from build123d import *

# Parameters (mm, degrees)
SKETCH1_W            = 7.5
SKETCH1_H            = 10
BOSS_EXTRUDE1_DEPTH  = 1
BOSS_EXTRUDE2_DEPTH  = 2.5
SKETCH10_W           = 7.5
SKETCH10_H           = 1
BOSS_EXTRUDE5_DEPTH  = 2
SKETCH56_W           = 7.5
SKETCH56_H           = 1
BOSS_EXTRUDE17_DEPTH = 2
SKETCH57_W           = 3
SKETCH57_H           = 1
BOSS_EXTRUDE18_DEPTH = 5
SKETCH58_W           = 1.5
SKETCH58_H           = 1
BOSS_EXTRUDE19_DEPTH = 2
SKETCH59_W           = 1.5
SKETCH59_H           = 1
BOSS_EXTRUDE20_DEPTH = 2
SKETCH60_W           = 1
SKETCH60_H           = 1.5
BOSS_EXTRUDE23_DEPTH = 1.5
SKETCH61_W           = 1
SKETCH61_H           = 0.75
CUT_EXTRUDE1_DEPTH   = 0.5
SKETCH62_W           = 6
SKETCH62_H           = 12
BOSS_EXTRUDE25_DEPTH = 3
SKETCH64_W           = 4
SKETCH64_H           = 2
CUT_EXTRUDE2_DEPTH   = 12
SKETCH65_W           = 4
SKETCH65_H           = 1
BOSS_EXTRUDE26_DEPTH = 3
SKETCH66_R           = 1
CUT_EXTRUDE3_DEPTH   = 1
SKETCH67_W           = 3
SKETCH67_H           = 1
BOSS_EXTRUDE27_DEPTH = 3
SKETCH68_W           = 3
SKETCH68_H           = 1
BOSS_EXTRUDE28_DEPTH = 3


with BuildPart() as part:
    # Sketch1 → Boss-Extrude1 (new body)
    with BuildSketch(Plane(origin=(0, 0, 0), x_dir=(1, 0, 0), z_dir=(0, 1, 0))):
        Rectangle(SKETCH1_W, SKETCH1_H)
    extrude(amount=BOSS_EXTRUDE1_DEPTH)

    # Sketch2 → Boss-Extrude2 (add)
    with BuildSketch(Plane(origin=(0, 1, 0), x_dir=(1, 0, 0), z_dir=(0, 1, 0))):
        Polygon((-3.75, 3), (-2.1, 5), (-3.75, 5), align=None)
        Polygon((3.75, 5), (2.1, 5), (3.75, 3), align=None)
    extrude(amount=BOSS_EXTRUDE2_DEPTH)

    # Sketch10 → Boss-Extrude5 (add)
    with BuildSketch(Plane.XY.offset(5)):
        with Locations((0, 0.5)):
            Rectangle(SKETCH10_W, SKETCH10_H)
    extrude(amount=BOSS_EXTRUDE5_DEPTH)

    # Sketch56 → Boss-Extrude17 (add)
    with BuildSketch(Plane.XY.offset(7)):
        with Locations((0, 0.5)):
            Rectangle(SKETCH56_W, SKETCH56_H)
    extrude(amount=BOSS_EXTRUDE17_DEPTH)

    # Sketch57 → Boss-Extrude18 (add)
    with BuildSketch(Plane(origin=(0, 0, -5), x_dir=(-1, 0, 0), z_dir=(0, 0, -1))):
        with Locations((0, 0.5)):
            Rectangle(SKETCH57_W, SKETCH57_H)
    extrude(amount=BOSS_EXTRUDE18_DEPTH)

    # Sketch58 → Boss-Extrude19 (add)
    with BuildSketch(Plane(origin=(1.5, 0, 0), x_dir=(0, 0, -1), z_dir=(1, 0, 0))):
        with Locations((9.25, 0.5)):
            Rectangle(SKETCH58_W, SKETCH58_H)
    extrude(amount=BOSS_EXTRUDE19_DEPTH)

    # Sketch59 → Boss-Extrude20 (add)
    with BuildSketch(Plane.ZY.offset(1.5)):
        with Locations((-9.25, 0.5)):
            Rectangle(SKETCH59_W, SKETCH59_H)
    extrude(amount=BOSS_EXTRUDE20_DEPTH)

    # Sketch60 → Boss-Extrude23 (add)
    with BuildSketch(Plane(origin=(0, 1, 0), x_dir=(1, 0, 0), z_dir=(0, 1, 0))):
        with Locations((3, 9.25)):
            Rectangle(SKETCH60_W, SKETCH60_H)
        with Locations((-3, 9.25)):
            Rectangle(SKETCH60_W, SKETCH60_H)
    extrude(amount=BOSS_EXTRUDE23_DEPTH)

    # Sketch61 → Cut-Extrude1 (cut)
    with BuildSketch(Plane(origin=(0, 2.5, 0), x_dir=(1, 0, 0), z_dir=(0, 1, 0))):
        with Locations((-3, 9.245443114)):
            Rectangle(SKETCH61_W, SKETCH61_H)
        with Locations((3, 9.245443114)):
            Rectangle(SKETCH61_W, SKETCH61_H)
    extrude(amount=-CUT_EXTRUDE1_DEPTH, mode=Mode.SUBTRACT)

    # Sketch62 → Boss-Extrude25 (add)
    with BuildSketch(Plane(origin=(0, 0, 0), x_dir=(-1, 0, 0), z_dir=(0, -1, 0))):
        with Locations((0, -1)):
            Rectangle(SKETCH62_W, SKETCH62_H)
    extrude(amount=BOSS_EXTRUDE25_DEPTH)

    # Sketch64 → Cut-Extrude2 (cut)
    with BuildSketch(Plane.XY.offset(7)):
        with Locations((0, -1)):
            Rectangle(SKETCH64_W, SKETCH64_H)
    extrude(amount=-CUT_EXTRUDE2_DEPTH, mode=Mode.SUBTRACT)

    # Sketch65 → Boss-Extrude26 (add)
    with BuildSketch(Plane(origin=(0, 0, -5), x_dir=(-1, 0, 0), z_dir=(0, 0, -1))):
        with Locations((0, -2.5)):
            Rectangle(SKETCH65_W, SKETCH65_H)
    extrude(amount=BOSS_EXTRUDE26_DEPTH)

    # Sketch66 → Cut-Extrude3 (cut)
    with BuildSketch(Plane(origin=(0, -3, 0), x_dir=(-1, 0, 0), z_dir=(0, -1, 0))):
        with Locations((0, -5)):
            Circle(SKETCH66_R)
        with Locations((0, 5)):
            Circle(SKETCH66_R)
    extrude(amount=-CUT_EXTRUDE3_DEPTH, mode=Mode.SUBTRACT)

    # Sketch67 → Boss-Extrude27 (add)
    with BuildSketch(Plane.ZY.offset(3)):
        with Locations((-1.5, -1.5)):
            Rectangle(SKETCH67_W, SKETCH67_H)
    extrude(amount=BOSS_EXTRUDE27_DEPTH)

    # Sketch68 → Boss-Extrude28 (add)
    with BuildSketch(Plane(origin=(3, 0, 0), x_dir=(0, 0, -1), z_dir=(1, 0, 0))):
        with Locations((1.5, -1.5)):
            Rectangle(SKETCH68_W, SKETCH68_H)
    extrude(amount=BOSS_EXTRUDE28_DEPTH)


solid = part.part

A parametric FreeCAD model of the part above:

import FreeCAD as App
import Part
import Sketcher
Q = App.Units.Quantity

doc = App.newDocument("Part")
params = doc.addObject("Spreadsheet::Sheet", "Params")
for row, (alias, value) in enumerate([
    ("sketch1_height", "10 mm"),
    ("sketch1_width", "7.5 mm"),
    ("pad1_length", "1 mm"),
    ("sketch2_height", "2 mm"),
    ("sketch2_width", "1.65 mm"),
    ("pad2_length", "2.5 mm"),
    ("sketch3_height", "1 mm"),
    ("sketch3_width", "7.5 mm"),
    ("pad3_length", "2 mm"),
    ("sketch4_height", "1 mm"),
    ("sketch4_width", "7.5 mm"),
    ("pad4_length", "2 mm"),
    ("sketch5_width", "3 mm"),
    ("sketch5_height", "1 mm"),
    ("pad5_length", "5 mm"),
    ("sketch6_width", "1 mm"),
    ("sketch6_height", "1.5 mm"),
    ("pad6_length", "2 mm"),
    ("sketch7_width", "1 mm"),
    ("sketch7_height", "1.5 mm"),
    ("pad7_length", "2 mm"),
    ("sketch8_width", "1 mm"),
    ("sketch8_height", "1.5 mm"),
    ("pad8_length", "1.5 mm"),
    ("sketch9_width", "1 mm"),
    ("sketch9_height", "0.75 mm"),
    ("pocket1_length", "0.5 mm"),
    ("sketch10_width", "6 mm"),
    ("sketch10_height", "12 mm"),
    ("pad9_length", "3 mm"),
    ("sketch11_width", "4 mm"),
    ("sketch11_height", "2 mm"),
    ("pocket2_length", "12 mm"),
    ("sketch12_width", "4 mm"),
    ("sketch12_height", "1 mm"),
    ("pad10_length", "3 mm"),
    ("sketch13_diameter", "2 mm"),
    ("pocket3_length", "1 mm"),
    ("sketch14_width", "1 mm"),
    ("sketch14_height", "3 mm"),
    ("pad11_length", "3 mm"),
    ("sketch15_width", "1 mm"),
    ("sketch15_height", "3 mm"),
    ("pad12_length", "3 mm"),
], start=1):
    params.set(f"A{row}", alias)
    params.set(f"B{row}", "=" + value)
    params.setAlias(f"B{row}", alias)

body = doc.addObject("PartDesign::Body", "Body")

sketch1 = doc.addObject("Sketcher::SketchObject", "Sketch")
body.addObject(sketch1)
sketch1.AttachmentSupport = (doc.XZ_Plane, [""])
sketch1.MapMode = "FlatFace"
sketch1.addGeometry([
    Part.LineSegment(App.Vector(-4, -5, 0), App.Vector(-4, 5, 0)),
    Part.LineSegment(App.Vector(-4, 5, 0), App.Vector(4, 5, 0)),
    Part.LineSegment(App.Vector(4, 5, 0), App.Vector(4, -5, 0)),
    Part.LineSegment(App.Vector(4, -5, 0), App.Vector(-4, -5, 0)),
], False)
sketch1.addConstraint([
    Sketcher.Constraint("Coincident", 0, 2, 1, 1),
    Sketcher.Constraint("Coincident", 1, 2, 2, 1),
    Sketcher.Constraint("Coincident", 2, 2, 3, 1),
    Sketcher.Constraint("Coincident", 3, 2, 0, 1),
    Sketcher.Constraint("Vertical", 0),
    Sketcher.Constraint("Horizontal", 1),
    Sketcher.Constraint("Vertical", 2),
    Sketcher.Constraint("Horizontal", 3),
    Sketcher.Constraint("Symmetric", 0, 2, 2, 2, -1, 1),
    Sketcher.Constraint("DistanceY", 0, 1, 0, 2, Q("10 mm")),
    Sketcher.Constraint("DistanceX", 1, 1, 1, 2, Q("7.5 mm")),
])
sketch1.setExpression("Constraints[9]", "Params.sketch1_height")
sketch1.setExpression("Constraints[10]", "Params.sketch1_width")
pad1 = doc.addObject("PartDesign::Pad", "Pad")
body.addObject(pad1)
pad1.Profile = sketch1
pad1.setExpression("Length", "Params.pad1_length")
pad1.Reversed = True

sketch2 = doc.addObject("Sketcher::SketchObject", "Sketch001")
body.addObject(sketch2)
sketch2.AttachmentSupport = (doc.XZ_Plane, [""])
sketch2.MapMode = "FlatFace"
sketch2.AttachmentOffset = App.Placement(App.Vector(0, 0, -1), App.Rotation())
sketch2.addGeometry([
    Part.LineSegment(App.Vector(-3.8, -3, 0), App.Vector(-2.1, -5, 0)),
    Part.LineSegment(App.Vector(-2.1, -5, 0), App.Vector(-3.8, -5, 0)),
    Part.LineSegment(App.Vector(-3.8, -5, 0), App.Vector(-3.8, -3, 0)),
    Part.LineSegment(App.Vector(3.8, -5, 0), App.Vector(2.1, -5, 0)),
    Part.LineSegment(App.Vector(2.1, -5, 0), App.Vector(3.8, -3, 0)),
    Part.LineSegment(App.Vector(3.8, -3, 0), App.Vector(3.8, -5, 0)),
], False)
sketch2.addConstraint([
    Sketcher.Constraint("Coincident", 0, 2, 1, 1),
    Sketcher.Constraint("Coincident", 1, 2, 2, 1),
    Sketcher.Constraint("Coincident", 2, 2, 0, 1),
    Sketcher.Constraint("Coincident", 3, 2, 4, 1),
    Sketcher.Constraint("Coincident", 4, 2, 5, 1),
    Sketcher.Constraint("Coincident", 5, 2, 3, 1),
    Sketcher.Constraint("Horizontal", 1),
    Sketcher.Constraint("Vertical", 2),
    Sketcher.Constraint("Horizontal", 3),
    Sketcher.Constraint("Vertical", 5),
    Sketcher.Constraint("Symmetric", 0, 2, 3, 2, -2),
    Sketcher.Constraint("Symmetric", 2, 2, 4, 2, -2),
    Sketcher.Constraint("DistanceY", 2, 1, 2, 2, Q("2 mm")),
    Sketcher.Constraint("DistanceY", 0, 2, -1, 1, Q("5 mm")),
    Sketcher.Constraint("DistanceX", 1, 2, 1, 1, Q("1.65 mm")),
    Sketcher.Constraint("DistanceX", 0, 2, -1, 1, Q("2.1 mm")),
])
sketch2.setExpression("Constraints[12]", "Params.sketch2_height")
sketch2.setExpression("Constraints[14]", "Params.sketch2_width")
pad2 = doc.addObject("PartDesign::Pad", "Pad001")
body.addObject(pad2)
pad2.Profile = sketch2
pad2.setExpression("Length", "Params.pad2_length")
pad2.Reversed = True

sketch3 = doc.addObject("Sketcher::SketchObject", "Sketch002")
body.addObject(sketch3)
sketch3.AttachmentSupport = (doc.XY_Plane, [""])
sketch3.MapMode = "FlatFace"
sketch3.AttachmentOffset = App.Placement(App.Vector(0, 0, 5), App.Rotation())
sketch3.addGeometry([
    Part.LineSegment(App.Vector(-3.8, 1, 0), App.Vector(-3.8, 0, 0)),
    Part.LineSegment(App.Vector(-3.8, 0, 0), App.Vector(3.8, 0, 0)),
    Part.LineSegment(App.Vector(3.8, 0, 0), App.Vector(3.8, 1, 0)),
    Part.LineSegment(App.Vector(3.8, 1, 0), App.Vector(-3.8, 1, 0)),
], False)
sketch3.addConstraint([
    Sketcher.Constraint("Coincident", 0, 2, 1, 1),
    Sketcher.Constraint("Coincident", 1, 2, 2, 1),
    Sketcher.Constraint("Coincident", 2, 2, 3, 1),
    Sketcher.Constraint("Coincident", 3, 2, 0, 1),
    Sketcher.Constraint("Vertical", 0),
    Sketcher.Constraint("Horizontal", 1),
    Sketcher.Constraint("Vertical", 2),
    Sketcher.Constraint("Horizontal", 3),
    Sketcher.Constraint("Symmetric", 0, 2, 1, 2, -1, 1),
    Sketcher.Constraint("DistanceY", 0, 2, 0, 1, Q("1 mm")),
    Sketcher.Constraint("DistanceX", 1, 1, 1, 2, Q("7.5 mm")),
])
sketch3.setExpression("Constraints[9]", "Params.sketch3_height")
sketch3.setExpression("Constraints[10]", "Params.sketch3_width")
pad3 = doc.addObject("PartDesign::Pad", "Pad002")
body.addObject(pad3)
pad3.Profile = sketch3
pad3.setExpression("Length", "Params.pad3_length")

sketch4 = doc.addObject("Sketcher::SketchObject", "Sketch003")
body.addObject(sketch4)
sketch4.AttachmentSupport = (doc.XY_Plane, [""])
sketch4.MapMode = "FlatFace"
sketch4.AttachmentOffset = App.Placement(App.Vector(0, 0, 7), App.Rotation())
sketch4.addGeometry([
    Part.LineSegment(App.Vector(-3.8, 1, 0), App.Vector(-3.8, 0, 0)),
    Part.LineSegment(App.Vector(-3.8, 0, 0), App.Vector(3.8, 0, 0)),
    Part.LineSegment(App.Vector(3.8, 0, 0), App.Vector(3.8, 1, 0)),
    Part.LineSegment(App.Vector(3.8, 1, 0), App.Vector(-3.8, 1, 0)),
], False)
sketch4.addConstraint([
    Sketcher.Constraint("Coincident", 0, 2, 1, 1),
    Sketcher.Constraint("Coincident", 1, 2, 2, 1),
    Sketcher.Constraint("Coincident", 2, 2, 3, 1),
    Sketcher.Constraint("Coincident", 3, 2, 0, 1),
    Sketcher.Constraint("Vertical", 0),
    Sketcher.Constraint("Horizontal", 1),
    Sketcher.Constraint("Vertical", 2),
    Sketcher.Constraint("Horizontal", 3),
    Sketcher.Constraint("Symmetric", 0, 2, 1, 2, -1, 1),
    Sketcher.Constraint("DistanceY", 0, 2, 0, 1, Q("1 mm")),
    Sketcher.Constraint("DistanceX", 1, 1, 1, 2, Q("7.5 mm")),
])
sketch4.setExpression("Constraints[9]", "Params.sketch4_height")
sketch4.setExpression("Constraints[10]", "Params.sketch4_width")
pad4 = doc.addObject("PartDesign::Pad", "Pad003")
body.addObject(pad4)
pad4.Profile = sketch4
pad4.setExpression("Length", "Params.pad4_length")

sketch5 = doc.addObject("Sketcher::SketchObject", "Sketch004")
body.addObject(sketch5)
sketch5.AttachmentSupport = (doc.XY_Plane, [""])
sketch5.MapMode = "FlatFace"
sketch5.AttachmentOffset = App.Placement(App.Vector(0, 0, -5), App.Rotation())
sketch5.addGeometry([
    Part.LineSegment(App.Vector(1.5, 1, 0), App.Vector(1.5, 0, 0)),
    Part.LineSegment(App.Vector(1.5, 0, 0), App.Vector(-1.5, 0, 0)),
    Part.LineSegment(App.Vector(-1.5, 0, 0), App.Vector(-1.5, 1, 0)),
    Part.LineSegment(App.Vector(-1.5, 1, 0), App.Vector(1.5, 1, 0)),
], False)
sketch5.addConstraint([
    Sketcher.Constraint("Coincident", 0, 2, 1, 1),
    Sketcher.Constraint("Coincident", 1, 2, 2, 1),
    Sketcher.Constraint("Coincident", 2, 2, 3, 1),
    Sketcher.Constraint("Coincident", 3, 2, 0, 1),
    Sketcher.Constraint("Vertical", 0),
    Sketcher.Constraint("Horizontal", 1),
    Sketcher.Constraint("Vertical", 2),
    Sketcher.Constraint("Horizontal", 3),
    Sketcher.Constraint("Symmetric", 0, 2, 1, 2, -1, 1),
    Sketcher.Constraint("DistanceX", 1, 2, 1, 1, Q("3 mm")),
    Sketcher.Constraint("DistanceY", 0, 2, 0, 1, Q("1 mm")),
])
sketch5.setExpression("Constraints[9]", "Params.sketch5_width")
sketch5.setExpression("Constraints[10]", "Params.sketch5_height")
pad5 = doc.addObject("PartDesign::Pad", "Pad004")
body.addObject(pad5)
pad5.Profile = sketch5
pad5.setExpression("Length", "Params.pad5_length")
pad5.Reversed = True

sketch6 = doc.addObject("Sketcher::SketchObject", "Sketch005")
body.addObject(sketch6)
sketch6.AttachmentSupport = (doc.YZ_Plane, [""])
sketch6.MapMode = "FlatFace"
sketch6.AttachmentOffset = App.Placement(App.Vector(0, 0, 1.5), App.Rotation())
sketch6.addGeometry([
    Part.LineSegment(App.Vector(1, -8.5, 0), App.Vector(0, -8.5, 0)),
    Part.LineSegment(App.Vector(0, -8.5, 0), App.Vector(0, -10, 0)),
    Part.LineSegment(App.Vector(0, -10, 0), App.Vector(1, -10, 0)),
    Part.LineSegment(App.Vector(1, -10, 0), App.Vector(1, -8.5, 0)),
], False)
sketch6.addConstraint([
    Sketcher.Constraint("Coincident", 0, 2, 1, 1),
    Sketcher.Constraint("Coincident", 1, 2, 2, 1),
    Sketcher.Constraint("Coincident", 2, 2, 3, 1),
    Sketcher.Constraint("Coincident", 3, 2, 0, 1),
    Sketcher.Constraint("Horizontal", 0),
    Sketcher.Constraint("Vertical", 1),
    Sketcher.Constraint("Horizontal", 2),
    Sketcher.Constraint("Vertical", 3),
    Sketcher.Constraint("PointOnObject", 0, 2, -2),
    Sketcher.Constraint("DistanceX", 0, 2, 0, 1, Q("1 mm")),
    Sketcher.Constraint("DistanceY", 1, 2, 1, 1, Q("1.5 mm")),
    Sketcher.Constraint("DistanceY", 1, 2, -1, 1, Q("10 mm")),
])
sketch6.setExpression("Constraints[9]", "Params.sketch6_width")
sketch6.setExpression("Constraints[10]", "Params.sketch6_height")
pad6 = doc.addObject("PartDesign::Pad", "Pad005")
body.addObject(pad6)
pad6.Profile = sketch6
pad6.setExpression("Length", "Params.pad6_length")

sketch7 = doc.addObject("Sketcher::SketchObject", "Sketch006")
body.addObject(sketch7)
sketch7.AttachmentSupport = (doc.YZ_Plane, [""])
sketch7.MapMode = "FlatFace"
sketch7.AttachmentOffset = App.Placement(App.Vector(0, 0, -1.5), App.Rotation())
sketch7.addGeometry([
    Part.LineSegment(App.Vector(1, -10, 0), App.Vector(0, -10, 0)),
    Part.LineSegment(App.Vector(0, -10, 0), App.Vector(0, -8.5, 0)),
    Part.LineSegment(App.Vector(0, -8.5, 0), App.Vector(1, -8.5, 0)),
    Part.LineSegment(App.Vector(1, -8.5, 0), App.Vector(1, -10, 0)),
], False)
sketch7.addConstraint([
    Sketcher.Constraint("Coincident", 0, 2, 1, 1),
    Sketcher.Constraint("Coincident", 1, 2, 2, 1),
    Sketcher.Constraint("Coincident", 2, 2, 3, 1),
    Sketcher.Constraint("Coincident", 3, 2, 0, 1),
    Sketcher.Constraint("Horizontal", 0),
    Sketcher.Constraint("Vertical", 1),
    Sketcher.Constraint("Horizontal", 2),
    Sketcher.Constraint("Vertical", 3),
    Sketcher.Constraint("PointOnObject", 0, 2, -2),
    Sketcher.Constraint("DistanceX", 0, 2, 0, 1, Q("1 mm")),
    Sketcher.Constraint("DistanceY", 1, 1, 1, 2, Q("1.5 mm")),
    Sketcher.Constraint("DistanceY", 0, 2, -1, 1, Q("10 mm")),
])
sketch7.setExpression("Constraints[9]", "Params.sketch7_width")
sketch7.setExpression("Constraints[10]", "Params.sketch7_height")
pad7 = doc.addObject("PartDesign::Pad", "Pad006")
body.addObject(pad7)
pad7.Profile = sketch7
pad7.setExpression("Length", "Params.pad7_length")
pad7.Reversed = True

sketch8 = doc.addObject("Sketcher::SketchObject", "Sketch007")
body.addObject(sketch8)
sketch8.AttachmentSupport = (doc.XZ_Plane, [""])
sketch8.MapMode = "FlatFace"
sketch8.AttachmentOffset = App.Placement(App.Vector(0, 0, -1), App.Rotation())
sketch8.addGeometry([
    Part.LineSegment(App.Vector(2.5, -10, 0), App.Vector(2.5, -8.5, 0)),
    Part.LineSegment(App.Vector(2.5, -8.5, 0), App.Vector(3.5, -8.5, 0)),
    Part.LineSegment(App.Vector(3.5, -8.5, 0), App.Vector(3.5, -10, 0)),
    Part.LineSegment(App.Vector(3.5, -10, 0), App.Vector(2.5, -10, 0)),
    Part.LineSegment(App.Vector(-3.5, -10, 0), App.Vector(-3.5, -8.5, 0)),
    Part.LineSegment(App.Vector(-3.5, -8.5, 0), App.Vector(-2.5, -8.5, 0)),
    Part.LineSegment(App.Vector(-2.5, -8.5, 0), App.Vector(-2.5, -10, 0)),
    Part.LineSegment(App.Vector(-2.5, -10, 0), App.Vector(-3.5, -10, 0)),
], False)
sketch8.addConstraint([
    Sketcher.Constraint("Coincident", 0, 2, 1, 1),
    Sketcher.Constraint("Coincident", 1, 2, 2, 1),
    Sketcher.Constraint("Coincident", 2, 2, 3, 1),
    Sketcher.Constraint("Coincident", 3, 2, 0, 1),
    Sketcher.Constraint("Coincident", 4, 2, 5, 1),
    Sketcher.Constraint("Coincident", 5, 2, 6, 1),
    Sketcher.Constraint("Coincident", 6, 2, 7, 1),
    Sketcher.Constraint("Coincident", 7, 2, 4, 1),
    Sketcher.Constraint("Vertical", 0),
    Sketcher.Constraint("Horizontal", 1),
    Sketcher.Constraint("Vertical", 2),
    Sketcher.Constraint("Horizontal", 3),
    Sketcher.Constraint("Vertical", 4),
    Sketcher.Constraint("Horizontal", 5),
    Sketcher.Constraint("Vertical", 6),
    Sketcher.Constraint("Horizontal", 7),
    Sketcher.Constraint("Symmetric", 1, 2, 4, 2, -2),
    Sketcher.Constraint("Symmetric", 3, 2, 6, 2, -2),
    Sketcher.Constraint("DistanceX", 1, 1, 1, 2, Q("1 mm")),
    Sketcher.Constraint("DistanceY", 0, 1, 0, 2, Q("1.5 mm")),
    Sketcher.Constraint("DistanceY", 2, 2, -1, 1, Q("10 mm")),
    Sketcher.Constraint("DistanceX", 4, 2, 0, 2, Q("6 mm")),
])
sketch8.setExpression("Constraints[18]", "Params.sketch8_width")
sketch8.setExpression("Constraints[19]", "Params.sketch8_height")
pad8 = doc.addObject("PartDesign::Pad", "Pad007")
body.addObject(pad8)
pad8.Profile = sketch8
pad8.setExpression("Length", "Params.pad8_length")
pad8.Reversed = True

sketch9 = doc.addObject("Sketcher::SketchObject", "Sketch008")
body.addObject(sketch9)
sketch9.AttachmentSupport = (doc.XZ_Plane, [""])
sketch9.MapMode = "FlatFace"
sketch9.AttachmentOffset = App.Placement(App.Vector(0, 0, -2.5), App.Rotation())
sketch9.addGeometry([
    Part.LineSegment(App.Vector(-3.5, -9.6, 0), App.Vector(-3.5, -8.9, 0)),
    Part.LineSegment(App.Vector(-3.5, -8.9, 0), App.Vector(-2.5, -8.9, 0)),
    Part.LineSegment(App.Vector(-2.5, -8.9, 0), App.Vector(-2.5, -9.6, 0)),
    Part.LineSegment(App.Vector(-2.5, -9.6, 0), App.Vector(-3.5, -9.6, 0)),
    Part.LineSegment(App.Vector(2.5, -9.6, 0), App.Vector(2.5, -8.9, 0)),
    Part.LineSegment(App.Vector(2.5, -8.9, 0), App.Vector(3.5, -8.9, 0)),
    Part.LineSegment(App.Vector(3.5, -8.9, 0), App.Vector(3.5, -9.6, 0)),
    Part.LineSegment(App.Vector(3.5, -9.6, 0), App.Vector(2.5, -9.6, 0)),
], False)
sketch9.addConstraint([
    Sketcher.Constraint("Coincident", 0, 2, 1, 1),
    Sketcher.Constraint("Coincident", 1, 2, 2, 1),
    Sketcher.Constraint("Coincident", 2, 2, 3, 1),
    Sketcher.Constraint("Coincident", 3, 2, 0, 1),
    Sketcher.Constraint("Coincident", 4, 2, 5, 1),
    Sketcher.Constraint("Coincident", 5, 2, 6, 1),
    Sketcher.Constraint("Coincident", 6, 2, 7, 1),
    Sketcher.Constraint("Coincident", 7, 2, 4, 1),
    Sketcher.Constraint("Vertical", 0),
    Sketcher.Constraint("Horizontal", 1),
    Sketcher.Constraint("Vertical", 2),
    Sketcher.Constraint("Horizontal", 3),
    Sketcher.Constraint("Vertical", 4),
    Sketcher.Constraint("Horizontal", 5),
    Sketcher.Constraint("Vertical", 6),
    Sketcher.Constraint("Horizontal", 7),
    Sketcher.Constraint("Symmetric", 1, 2, 4, 2, -2),
    Sketcher.Constraint("Symmetric", 3, 2, 6, 2, -2),
    Sketcher.Constraint("DistanceX", 1, 1, 1, 2, Q("1 mm")),
    Sketcher.Constraint("DistanceX", 1, 2, 4, 2, Q("5 mm")),
    Sketcher.Constraint("DistanceY", 0, 1, 0, 2, Q("0.75 mm")),
    Sketcher.Constraint("DistanceY", 0, 2, -1, 1, Q("8.870443 mm")),
])
sketch9.setExpression("Constraints[18]", "Params.sketch9_width")
sketch9.setExpression("Constraints[20]", "Params.sketch9_height")
pocket1 = doc.addObject("PartDesign::Pocket", "Pocket")
body.addObject(pocket1)
pocket1.Profile = sketch9
pocket1.setExpression("Length", "Params.pocket1_length")
pocket1.Reversed = True

sketch10 = doc.addObject("Sketcher::SketchObject", "Sketch009")
body.addObject(sketch10)
sketch10.AttachmentSupport = (doc.XZ_Plane, [""])
sketch10.MapMode = "FlatFace"
sketch10.addGeometry([
    Part.LineSegment(App.Vector(3, -5, 0), App.Vector(3, 7, 0)),
    Part.LineSegment(App.Vector(3, 7, 0), App.Vector(-3, 7, 0)),
    Part.LineSegment(App.Vector(-3, 7, 0), App.Vector(-3, -5, 0)),
    Part.LineSegment(App.Vector(-3, -5, 0), App.Vector(3, -5, 0)),
], False)
sketch10.addConstraint([
    Sketcher.Constraint("Coincident", 0, 2, 1, 1),
    Sketcher.Constraint("Coincident", 1, 2, 2, 1),
    Sketcher.Constraint("Coincident", 2, 2, 3, 1),
    Sketcher.Constraint("Coincident", 3, 2, 0, 1),
    Sketcher.Constraint("Vertical", 0),
    Sketcher.Constraint("Horizontal", 1),
    Sketcher.Constraint("Vertical", 2),
    Sketcher.Constraint("Horizontal", 3),
    Sketcher.Constraint("DistanceX", 1, 2, 1, 1, Q("6 mm")),
    Sketcher.Constraint("DistanceY", 0, 1, 0, 2, Q("12 mm")),
    Sketcher.Constraint("DistanceX", -1, 1, 0, 2, Q("3 mm")),
    Sketcher.Constraint("DistanceY", -1, 1, 0, 2, Q("7 mm")),
])
sketch10.setExpression("Constraints[8]", "Params.sketch10_width")
sketch10.setExpression("Constraints[9]", "Params.sketch10_height")
pad9 = doc.addObject("PartDesign::Pad", "Pad008")
body.addObject(pad9)
pad9.Profile = sketch10
pad9.setExpression("Length", "Params.pad9_length")

sketch11 = doc.addObject("Sketcher::SketchObject", "Sketch010")
body.addObject(sketch11)
sketch11.AttachmentSupport = (doc.XY_Plane, [""])
sketch11.MapMode = "FlatFace"
sketch11.AttachmentOffset = App.Placement(App.Vector(0, 0, 7), App.Rotation())
sketch11.addGeometry([
    Part.LineSegment(App.Vector(-2, 0, 0), App.Vector(-2, -2, 0)),
    Part.LineSegment(App.Vector(-2, -2, 0), App.Vector(2, -2, 0)),
    Part.LineSegment(App.Vector(2, -2, 0), App.Vector(2, 0, 0)),
    Part.LineSegment(App.Vector(2, 0, 0), App.Vector(-2, 0, 0)),
], False)
sketch11.addConstraint([
    Sketcher.Constraint("Coincident", 0, 2, 1, 1),
    Sketcher.Constraint("Coincident", 1, 2, 2, 1),
    Sketcher.Constraint("Coincident", 2, 2, 3, 1),
    Sketcher.Constraint("Coincident", 3, 2, 0, 1),
    Sketcher.Constraint("Vertical", 0),
    Sketcher.Constraint("Horizontal", 1),
    Sketcher.Constraint("Vertical", 2),
    Sketcher.Constraint("Horizontal", 3),
    Sketcher.Constraint("Symmetric", 2, 2, 3, 2, -1, 1),
    Sketcher.Constraint("DistanceX", 1, 1, 1, 2, Q("4 mm")),
    Sketcher.Constraint("DistanceY", 0, 2, 0, 1, Q("2 mm")),
])
sketch11.setExpression("Constraints[9]", "Params.sketch11_width")
sketch11.setExpression("Constraints[10]", "Params.sketch11_height")
pocket2 = doc.addObject("PartDesign::Pocket", "Pocket001")
body.addObject(pocket2)
pocket2.Profile = sketch11
pocket2.setExpression("Length", "Params.pocket2_length")

sketch12 = doc.addObject("Sketcher::SketchObject", "Sketch011")
body.addObject(sketch12)
sketch12.AttachmentSupport = (doc.XY_Plane, [""])
sketch12.MapMode = "FlatFace"
sketch12.AttachmentOffset = App.Placement(App.Vector(0, 0, -5), App.Rotation())
sketch12.addGeometry([
    Part.LineSegment(App.Vector(2, -2, 0), App.Vector(2, -3, 0)),
    Part.LineSegment(App.Vector(2, -3, 0), App.Vector(-2, -3, 0)),
    Part.LineSegment(App.Vector(-2, -3, 0), App.Vector(-2, -2, 0)),
    Part.LineSegment(App.Vector(-2, -2, 0), App.Vector(2, -2, 0)),
], False)
sketch12.addConstraint([
    Sketcher.Constraint("Coincident", 0, 2, 1, 1),
    Sketcher.Constraint("Coincident", 1, 2, 2, 1),
    Sketcher.Constraint("Coincident", 2, 2, 3, 1),
    Sketcher.Constraint("Coincident", 3, 2, 0, 1),
    Sketcher.Constraint("Vertical", 0),
    Sketcher.Constraint("Horizontal", 1),
    Sketcher.Constraint("Vertical", 2),
    Sketcher.Constraint("Horizontal", 3),
    Sketcher.Constraint("DistanceX", 1, 2, 1, 1, Q("4 mm")),
    Sketcher.Constraint("DistanceY", 0, 2, 0, 1, Q("1 mm")),
    Sketcher.Constraint("DistanceX", -1, 1, 0, 2, Q("2 mm")),
    Sketcher.Constraint("DistanceY", 0, 2, -1, 1, Q("3 mm")),
])
sketch12.setExpression("Constraints[8]", "Params.sketch12_width")
sketch12.setExpression("Constraints[9]", "Params.sketch12_height")
pad10 = doc.addObject("PartDesign::Pad", "Pad009")
body.addObject(pad10)
pad10.Profile = sketch12
pad10.setExpression("Length", "Params.pad10_length")
pad10.Reversed = True

sketch13 = doc.addObject("Sketcher::SketchObject", "Sketch012")
body.addObject(sketch13)
sketch13.AttachmentSupport = (doc.XZ_Plane, [""])
sketch13.MapMode = "FlatFace"
sketch13.AttachmentOffset = App.Placement(App.Vector(0, 0, 3), App.Rotation())
sketch13.addGeometry([
    Part.Circle(App.Vector(0, 5, 0), App.Vector(0, 0, 1), 1),
    Part.Circle(App.Vector(0, -5, 0), App.Vector(0, 0, 1), 1),
], False)
sketch13.addConstraint([
    Sketcher.Constraint("Equal", 0, 1),
    Sketcher.Constraint("Symmetric", 0, 3, 1, 3, -1, 1),
    Sketcher.Constraint("PointOnObject", 0, 3, -2),
    Sketcher.Constraint("Diameter", 0, Q("2 mm")),
    Sketcher.Constraint("DistanceY", -1, 1, 0, 3, Q("5 mm")),
])
sketch13.setExpression("Constraints[3]", "Params.sketch13_diameter")
pocket3 = doc.addObject("PartDesign::Pocket", "Pocket002")
body.addObject(pocket3)
pocket3.Profile = sketch13
pocket3.setExpression("Length", "Params.pocket3_length")

sketch14 = doc.addObject("Sketcher::SketchObject", "Sketch013")
body.addObject(sketch14)
sketch14.AttachmentSupport = (doc.YZ_Plane, [""])
sketch14.MapMode = "FlatFace"
sketch14.AttachmentOffset = App.Placement(App.Vector(0, 0, -3), App.Rotation())
sketch14.addGeometry([
    Part.LineSegment(App.Vector(-1, -3, 0), App.Vector(-2, -3, 0)),
    Part.LineSegment(App.Vector(-2, -3, 0), App.Vector(-2, 0, 0)),
    Part.LineSegment(App.Vector(-2, 0, 0), App.Vector(-1, 0, 0)),
    Part.LineSegment(App.Vector(-1, 0, 0), App.Vector(-1, -3, 0)),
], False)
sketch14.addConstraint([
    Sketcher.Constraint("Coincident", 0, 2, 1, 1),
    Sketcher.Constraint("Coincident", 1, 2, 2, 1),
    Sketcher.Constraint("Coincident", 2, 2, 3, 1),
    Sketcher.Constraint("Coincident", 3, 2, 0, 1),
    Sketcher.Constraint("Horizontal", 0),
    Sketcher.Constraint("Vertical", 1),
    Sketcher.Constraint("Horizontal", 2),
    Sketcher.Constraint("Vertical", 3),
    Sketcher.Constraint("PointOnObject", 1, 2, -1),
    Sketcher.Constraint("DistanceX", 0, 2, 0, 1, Q("1 mm")),
    Sketcher.Constraint("DistanceY", 1, 1, 1, 2, Q("3 mm")),
    Sketcher.Constraint("DistanceX", 0, 2, -1, 1, Q("2 mm")),
])
sketch14.setExpression("Constraints[9]", "Params.sketch14_width")
sketch14.setExpression("Constraints[10]", "Params.sketch14_height")
pad11 = doc.addObject("PartDesign::Pad", "Pad010")
body.addObject(pad11)
pad11.Profile = sketch14
pad11.setExpression("Length", "Params.pad11_length")
pad11.Reversed = True

sketch15 = doc.addObject("Sketcher::SketchObject", "Sketch014")
body.addObject(sketch15)
sketch15.AttachmentSupport = (doc.YZ_Plane, [""])
sketch15.MapMode = "FlatFace"
sketch15.AttachmentOffset = App.Placement(App.Vector(0, 0, 3), App.Rotation())
sketch15.addGeometry([
    Part.LineSegment(App.Vector(-1, 0, 0), App.Vector(-2, 0, 0)),
    Part.LineSegment(App.Vector(-2, 0, 0), App.Vector(-2, -3, 0)),
    Part.LineSegment(App.Vector(-2, -3, 0), App.Vector(-1, -3, 0)),
    Part.LineSegment(App.Vector(-1, -3, 0), App.Vector(-1, 0, 0)),
], False)
sketch15.addConstraint([
    Sketcher.Constraint("Coincident", 0, 2, 1, 1),
    Sketcher.Constraint("Coincident", 1, 2, 2, 1),
    Sketcher.Constraint("Coincident", 2, 2, 3, 1),
    Sketcher.Constraint("Coincident", 3, 2, 0, 1),
    Sketcher.Constraint("Horizontal", 0),
    Sketcher.Constraint("Vertical", 1),
    Sketcher.Constraint("Horizontal", 2),
    Sketcher.Constraint("Vertical", 3),
    Sketcher.Constraint("PointOnObject", 0, 2, -1),
    Sketcher.Constraint("DistanceX", 0, 2, 0, 1, Q("1 mm")),
    Sketcher.Constraint("DistanceY", 1, 2, 1, 1, Q("3 mm")),
    Sketcher.Constraint("DistanceX", 0, 2, -1, 1, Q("2 mm")),
])
sketch15.setExpression("Constraints[9]", "Params.sketch15_width")
sketch15.setExpression("Constraints[10]", "Params.sketch15_height")
pad12 = doc.addObject("PartDesign::Pad", "Pad011")
body.addObject(pad12)
pad12.Profile = sketch15
pad12.setExpression("Length", "Params.pad12_length")

doc.recompute()
